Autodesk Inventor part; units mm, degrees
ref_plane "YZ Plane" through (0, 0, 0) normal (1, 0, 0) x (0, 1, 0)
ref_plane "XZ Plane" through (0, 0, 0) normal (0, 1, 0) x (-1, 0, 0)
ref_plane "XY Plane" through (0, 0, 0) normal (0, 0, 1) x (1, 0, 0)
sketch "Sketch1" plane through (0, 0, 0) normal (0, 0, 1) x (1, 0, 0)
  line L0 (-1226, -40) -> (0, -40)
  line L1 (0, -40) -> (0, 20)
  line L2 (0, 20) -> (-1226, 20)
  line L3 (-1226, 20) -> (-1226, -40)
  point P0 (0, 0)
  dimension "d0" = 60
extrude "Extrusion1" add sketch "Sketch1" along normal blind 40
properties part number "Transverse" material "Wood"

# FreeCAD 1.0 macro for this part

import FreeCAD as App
import Part
import Sketcher

V = App.Vector

doc = App.newDocument("Part")
params = doc.addObject("Spreadsheet::Sheet", "Params")
for row, (alias, value) in enumerate([
    ("sketch1_height", "60 mm"),
    ("sketch1_width", "1226 mm"),
    ("pad1_length", "40 mm"),
], start=1):
    params.set(f"A{row}", alias)
    params.set(f"B{row}", "=" + value)
    params.setAlias(f"B{row}", alias)

body = doc.addObject("PartDesign::Body", "Body")

sketch1 = body.newObject("Sketcher::SketchObject", "Sketch")
sketch1.AttachmentSupport = (doc.getObject("XY_Plane"), [""])
sketch1.MapMode = "FlatFace"
sketch1.addGeometry([
    Part.LineSegment(V(-1226, 20, 0), V(-1226, -40, 0)),
    Part.LineSegment(V(-1226, -40, 0), V(0, -40, 0)),
    Part.LineSegment(V(0, -40, 0), V(0, 20, 0)),
    Part.LineSegment(V(0, 20, 0), V(-1226, 20, 0)),
], False)
sketch1.addConstraint([
    Sketcher.Constraint("Coincident", 0, 2, 1, 1),
    Sketcher.Constraint("Coincident", 1, 2, 2, 1),
    Sketcher.Constraint("Coincident", 2, 2, 3, 1),
    Sketcher.Constraint("Coincident", 3, 2, 0, 1),
    Sketcher.Constraint("Vertical", 0),
    Sketcher.Constraint("Horizontal", 1),
    Sketcher.Constraint("Vertical", 2),
    Sketcher.Constraint("Horizontal", 3),
    Sketcher.Constraint("PointOnObject", 1, 2, -2),
    Sketcher.Constraint("DistanceY", 0, 2, 0, 1, 60.0),
    Sketcher.Constraint("DistanceX", 1, 1, 1, 2, 1226.0),
    Sketcher.Constraint("DistanceY", 0, 2, -1, 1, 40.0),
])
sketch1.setExpression("Constraints[9]", "Params.sketch1_height")
sketch1.setExpression("Constraints[10]", "Params.sketch1_width")
pad1 = body.newObject("PartDesign::Pad", "Pad")
pad1.Profile = sketch1
pad1.setExpression("Length", "Params.pad1_length")

doc.recompute()
